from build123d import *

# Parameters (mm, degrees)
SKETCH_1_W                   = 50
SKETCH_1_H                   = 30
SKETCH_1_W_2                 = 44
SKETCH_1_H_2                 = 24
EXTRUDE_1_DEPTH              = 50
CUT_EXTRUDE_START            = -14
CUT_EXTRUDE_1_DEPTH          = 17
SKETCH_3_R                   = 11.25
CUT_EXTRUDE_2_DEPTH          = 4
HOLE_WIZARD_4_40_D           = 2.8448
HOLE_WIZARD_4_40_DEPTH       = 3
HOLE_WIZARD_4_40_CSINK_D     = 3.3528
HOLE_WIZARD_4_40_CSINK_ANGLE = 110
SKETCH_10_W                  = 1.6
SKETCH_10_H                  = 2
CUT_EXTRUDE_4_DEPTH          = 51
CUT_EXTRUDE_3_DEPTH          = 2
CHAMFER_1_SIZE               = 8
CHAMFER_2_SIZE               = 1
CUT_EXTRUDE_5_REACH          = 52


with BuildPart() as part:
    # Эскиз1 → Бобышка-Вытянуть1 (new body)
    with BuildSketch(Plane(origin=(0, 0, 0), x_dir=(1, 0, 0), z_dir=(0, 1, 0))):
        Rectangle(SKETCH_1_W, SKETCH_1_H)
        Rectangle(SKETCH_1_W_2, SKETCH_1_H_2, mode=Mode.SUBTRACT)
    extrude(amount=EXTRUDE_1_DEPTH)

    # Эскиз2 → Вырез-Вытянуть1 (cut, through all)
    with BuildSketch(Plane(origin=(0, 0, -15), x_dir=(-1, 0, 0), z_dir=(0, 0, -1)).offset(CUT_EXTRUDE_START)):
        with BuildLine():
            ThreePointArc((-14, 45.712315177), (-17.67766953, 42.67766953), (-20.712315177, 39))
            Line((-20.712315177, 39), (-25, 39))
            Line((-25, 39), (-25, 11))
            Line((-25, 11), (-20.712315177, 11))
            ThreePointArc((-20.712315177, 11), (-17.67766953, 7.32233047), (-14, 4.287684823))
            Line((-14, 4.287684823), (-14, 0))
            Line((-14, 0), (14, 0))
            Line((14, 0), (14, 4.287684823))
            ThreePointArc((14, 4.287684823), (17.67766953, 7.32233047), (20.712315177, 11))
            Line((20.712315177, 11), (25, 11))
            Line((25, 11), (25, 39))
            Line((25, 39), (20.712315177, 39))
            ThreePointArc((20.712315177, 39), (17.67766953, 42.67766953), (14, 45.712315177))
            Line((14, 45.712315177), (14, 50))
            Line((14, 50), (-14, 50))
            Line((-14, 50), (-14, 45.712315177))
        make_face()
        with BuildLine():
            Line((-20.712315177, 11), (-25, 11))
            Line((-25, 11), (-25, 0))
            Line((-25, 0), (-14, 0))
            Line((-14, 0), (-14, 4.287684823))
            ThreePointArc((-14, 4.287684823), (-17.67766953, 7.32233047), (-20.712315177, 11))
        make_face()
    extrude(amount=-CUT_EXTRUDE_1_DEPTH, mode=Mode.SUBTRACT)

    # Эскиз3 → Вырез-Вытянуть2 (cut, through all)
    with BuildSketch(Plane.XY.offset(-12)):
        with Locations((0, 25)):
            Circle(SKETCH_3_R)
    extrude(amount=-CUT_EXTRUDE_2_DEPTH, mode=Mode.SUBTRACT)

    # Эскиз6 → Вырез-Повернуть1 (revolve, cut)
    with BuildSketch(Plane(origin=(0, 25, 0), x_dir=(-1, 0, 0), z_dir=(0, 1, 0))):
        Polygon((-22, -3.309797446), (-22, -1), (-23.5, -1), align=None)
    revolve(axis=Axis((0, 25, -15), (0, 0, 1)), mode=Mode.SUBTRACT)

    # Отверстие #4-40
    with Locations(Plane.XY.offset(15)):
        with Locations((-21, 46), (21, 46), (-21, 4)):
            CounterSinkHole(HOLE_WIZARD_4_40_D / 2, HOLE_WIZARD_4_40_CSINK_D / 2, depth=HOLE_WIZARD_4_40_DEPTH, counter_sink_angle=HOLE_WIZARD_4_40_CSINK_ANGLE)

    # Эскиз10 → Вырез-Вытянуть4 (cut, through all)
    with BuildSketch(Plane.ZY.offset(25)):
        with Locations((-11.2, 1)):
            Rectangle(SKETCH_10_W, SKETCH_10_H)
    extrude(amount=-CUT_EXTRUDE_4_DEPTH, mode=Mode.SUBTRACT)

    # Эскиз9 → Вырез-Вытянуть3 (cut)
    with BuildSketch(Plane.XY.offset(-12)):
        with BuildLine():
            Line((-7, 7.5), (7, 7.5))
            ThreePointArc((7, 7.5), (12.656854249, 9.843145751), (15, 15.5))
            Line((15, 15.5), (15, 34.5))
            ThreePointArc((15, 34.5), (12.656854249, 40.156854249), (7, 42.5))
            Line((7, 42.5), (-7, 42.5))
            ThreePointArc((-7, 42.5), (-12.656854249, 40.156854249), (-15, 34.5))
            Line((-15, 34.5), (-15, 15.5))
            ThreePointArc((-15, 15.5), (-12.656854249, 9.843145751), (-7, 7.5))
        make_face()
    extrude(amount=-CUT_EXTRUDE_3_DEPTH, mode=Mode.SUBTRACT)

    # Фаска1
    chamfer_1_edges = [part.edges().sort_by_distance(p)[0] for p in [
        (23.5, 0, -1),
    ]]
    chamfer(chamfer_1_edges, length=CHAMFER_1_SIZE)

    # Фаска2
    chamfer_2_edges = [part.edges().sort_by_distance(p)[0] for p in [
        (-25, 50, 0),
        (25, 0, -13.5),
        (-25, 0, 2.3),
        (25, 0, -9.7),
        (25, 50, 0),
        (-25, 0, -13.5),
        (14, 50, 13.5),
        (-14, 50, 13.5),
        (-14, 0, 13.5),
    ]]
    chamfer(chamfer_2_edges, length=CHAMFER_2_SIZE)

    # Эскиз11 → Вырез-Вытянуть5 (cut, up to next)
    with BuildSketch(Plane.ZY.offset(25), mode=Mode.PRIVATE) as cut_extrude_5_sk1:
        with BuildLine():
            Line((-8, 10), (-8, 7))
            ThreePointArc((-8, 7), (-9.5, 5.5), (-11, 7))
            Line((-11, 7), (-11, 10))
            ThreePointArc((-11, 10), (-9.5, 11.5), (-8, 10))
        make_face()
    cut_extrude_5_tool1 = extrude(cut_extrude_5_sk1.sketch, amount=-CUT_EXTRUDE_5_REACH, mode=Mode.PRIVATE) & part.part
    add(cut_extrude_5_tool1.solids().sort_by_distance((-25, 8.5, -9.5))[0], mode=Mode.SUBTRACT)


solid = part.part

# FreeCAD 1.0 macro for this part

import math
import FreeCAD as App
import Part
import Sketcher
from FreeCAD import Vector
Q = App.Units.Quantity


def edges_at(feature, points):
    """Names of the edges that pass closest to the given points."""
    edges = feature.Shape.Edges
    near = lambda p: min(range(len(edges)), key=lambda i: edges[i].distToShape(Part.Vertex(*p))[0])
    return sorted({f"Edge{near(p) + 1}" for p in points})


def add_polygon(sketch, points):
    """Adds a closed chain of lines whose ends are joined by coincident constraints."""
    first, n = sketch.GeometryCount, len(points)
    for a, b in zip(points, points[1:] + points[:1]):
        sketch.addGeometry(Part.LineSegment(App.Vector(*a, 0), App.Vector(*b, 0)), False)
    for i in range(n):
        sketch.addConstraint(Sketcher.Constraint("Coincident", first + i, 2, first + (i + 1) % n, 1))

doc = App.newDocument("Part")
body = doc.addObject("PartDesign::Body", "Body")

sketch1 = doc.addObject("Sketcher::SketchObject", "Sketch")
body.addObject(sketch1)
sketch1.AttachmentSupport = (doc.XZ_Plane, [""])
sketch1.MapMode = "FlatFace"
add_polygon(sketch1, [(-25, -15), (-25, 15), (25, 15), (25, -15)])
add_polygon(sketch1, [(22, 12), (-22, 12), (-22, -12), (22, -12)])
sketch1.addConstraint(Sketcher.Constraint("Vertical", 0))
sketch1.addConstraint(Sketcher.Constraint("Horizontal", 1))
sketch1.addConstraint(Sketcher.Constraint("Vertical", 2))
sketch1.addConstraint(Sketcher.Constraint("Horizontal", 3))
sketch1.addConstraint(Sketcher.Constraint("Horizontal", 4))
sketch1.addConstraint(Sketcher.Constraint("Vertical", 5))
sketch1.addConstraint(Sketcher.Constraint("Horizontal", 6))
sketch1.addConstraint(Sketcher.Constraint("Vertical", 7))
sketch1.addConstraint(Sketcher.Constraint("Symmetric", 0, 2, 2, 2, -1, 1))
sketch1.addConstraint(Sketcher.Constraint("Symmetric", 4, 2, 6, 2, -1, 1))
sketch1.addConstraint(Sketcher.Constraint("DistanceX", 1, 1, 1, 2, 50.0))
sketch1.addConstraint(Sketcher.Constraint("DistanceX", 4, 2, 4, 1, 44.0))
sketch1.addConstraint(Sketcher.Constraint("DistanceY", 0, 1, 0, 2, 30.0))
sketch1.addConstraint(Sketcher.Constraint("DistanceY", 5, 2, 5, 1, 24.0))
pad1 = doc.addObject("PartDesign::Pad", "Pad")
body.addObject(pad1)
pad1.Profile = sketch1
pad1.Length = 50
pad1.Reversed = True

sketch2 = doc.addObject("Sketcher::SketchObject", "Sketch001")
body.addObject(sketch2)
sketch2.AttachmentSupport = (doc.XY_Plane, [""])
sketch2.MapMode = "FlatFace"
sketch2.AttachmentOffset = App.Placement(Vector(0, 0, -1), App.Rotation())
sketch2.addGeometry(Part.ArcOfCircle(Part.Circle(Vector(0, 25, 0), Vector(0, 0, 1), 25), math.radians(34), math.radians(56)), False)
sketch2.addGeometry(Part.LineSegment(Vector(20.7, 39, 0), Vector(25, 39, 0)), False)
sketch2.addGeometry(Part.LineSegment(Vector(25, 39, 0), Vector(25, 0, 0)), False)
sketch2.addGeometry(Part.LineSegment(Vector(25, 0, 0), Vector(-14, 0, 0)), False)
sketch2.addGeometry(Part.LineSegment(Vector(-14, 0, 0), Vector(-14, 4.3, 0)), False)
sketch2.addGeometry(Part.ArcOfCircle(Part.Circle(Vector(0, 25, 0), Vector(0, 0, 1), 25), math.radians(-146), math.radians(-124)), False)
sketch2.addGeometry(Part.LineSegment(Vector(-20.7, 11, 0), Vector(-25, 11, 0)), False)
sketch2.addGeometry(Part.LineSegment(Vector(-25, 11, 0), Vector(-25, 39, 0)), False)
sketch2.addGeometry(Part.LineSegment(Vector(-25, 39, 0), Vector(-20.7, 39, 0)), False)
sketch2.addGeometry(Part.ArcOfCircle(Part.Circle(Vector(0, 25, 0), Vector(0, 0, 1), 25), math.radians(124), math.radians(146)), False)
sketch2.addGeometry(Part.LineSegment(Vector(-14, 45.7, 0), Vector(-14, 50, 0)), False)
sketch2.addGeometry(Part.LineSegment(Vector(-14, 50, 0), Vector(14, 50, 0)), False)
sketch2.addGeometry(Part.LineSegment(Vector(14, 50, 0), Vector(14, 45.7, 0)), False)
sketch2.addConstraint(Sketcher.Constraint("Coincident", 0, 1, 1, 1))
sketch2.addConstraint(Sketcher.Constraint("Coincident", 1, 2, 2, 1))
sketch2.addConstraint(Sketcher.Constraint("Coincident", 2, 2, 3, 1))
sketch2.addConstraint(Sketcher.Constraint("Coincident", 3, 2, 4, 1))
sketch2.addConstraint(Sketcher.Constraint("Coincident", 4, 2, 5, 2))
sketch2.addConstraint(Sketcher.Constraint("Coincident", 5, 1, 6, 1))
sketch2.addConstraint(Sketcher.Constraint("Coincident", 6, 2, 7, 1))
sketch2.addConstraint(Sketcher.Constraint("Coincident", 7, 2, 8, 1))
sketch2.addConstraint(Sketcher.Constraint("Coincident", 8, 2, 9, 2))
sketch2.addConstraint(Sketcher.Constraint("Coincident", 9, 1, 10, 1))
sketch2.addConstraint(Sketcher.Constraint("Coincident", 10, 2, 11, 1))
sketch2.addConstraint(Sketcher.Constraint("Coincident", 11, 2, 12, 1))
sketch2.addConstraint(Sketcher.Constraint("Coincident", 12, 2, 0, 2))
sketch2.addConstraint(Sketcher.Constraint("Horizontal", 1))
sketch2.addConstraint(Sketcher.Constraint("Vertical", 2))
sketch2.addConstraint(Sketcher.Constraint("Horizontal", 3))
sketch2.addConstraint(Sketcher.Constraint("Vertical", 4))
sketch2.addConstraint(Sketcher.Constraint("Horizontal", 6))
sketch2.addConstraint(Sketcher.Constraint("Vertical", 7))
sketch2.addConstraint(Sketcher.Constraint("Horizontal", 8))
sketch2.addConstraint(Sketcher.Constraint("Vertical", 10))
sketch2.addConstraint(Sketcher.Constraint("Horizontal", 11))
sketch2.addConstraint(Sketcher.Constraint("Vertical", 12))
sketch2.addConstraint(Sketcher.Constraint("Coincident", 5, 3, 0, 3))
sketch2.addConstraint(Sketcher.Constraint("Coincident", 9, 3, 0, 3))
sketch2.addConstraint(Sketcher.Constraint("Equal", 0, 5))
sketch2.addConstraint(Sketcher.Constraint("Equal", 5, 9))
sketch2.addConstraint(Sketcher.Constraint("Symmetric", 1, 2, 7, 2, -2))
sketch2.addConstraint(Sketcher.Constraint("Symmetric", 9, 1, 12, 2, -2))
sketch2.addConstraint(Sketcher.Constraint("PointOnObject", 2, 2, -1))
sketch2.addConstraint(Sketcher.Constraint("Vertical", 5, 1, 8, 2))
sketch2.addConstraint(Sketcher.Constraint("Vertical", 4, 2, 9, 1))
sketch2.addConstraint(Sketcher.Constraint("Equal", 3, 2))
sketch2.addConstraint(Sketcher.Constraint("Equal", 8, 4))
sketch2.addConstraint(Sketcher.Constraint("Equal", 4, 10))
sketch2.addConstraint(Sketcher.Constraint("Radius", 0, 25.0))
sketch2.addConstraint(Sketcher.Constraint("DistanceX", 3, 2, 3, 1, 39.0))
sketch2.addConstraint(Sketcher.Constraint("DistanceX", 11, 1, 11, 2, 28.0))
pocket1 = doc.addObject("PartDesign::Pocket", "Pocket")
body.addObject(pocket1)
pocket1.Profile = sketch2
pocket1.Type = "ThroughAll"
pocket1.Reversed = True

sketch3 = doc.addObject("Sketcher::SketchObject", "Sketch002")
body.addObject(sketch3)
sketch3.AttachmentSupport = (doc.XY_Plane, [""])
sketch3.MapMode = "FlatFace"
sketch3.AttachmentOffset = App.Placement(Vector(0, 0, -12), App.Rotation())
sketch3.addGeometry(Part.Circle(Vector(0, 25, 0), Vector(0, 0, 1), 11), False)
sketch3.addConstraint(Sketcher.Constraint("PointOnObject", 0, 3, -2))
sketch3.addConstraint(Sketcher.Constraint("Diameter", 0, 22.5))
sketch3.addConstraint(Sketcher.Constraint("DistanceY", -1, 1, 0, 3, 25.0))
pocket2 = doc.addObject("PartDesign::Pocket", "Pocket001")
body.addObject(pocket2)
pocket2.Profile = sketch3
pocket2.Type = "ThroughAll"

sketch4 = doc.addObject("Sketcher::SketchObject", "Sketch003")
body.addObject(sketch4)
sketch4.AttachmentSupport = (doc.XZ_Plane, [""])
sketch4.MapMode = "FlatFace"
sketch4.AttachmentOffset = App.Placement(Vector(0, 0, -25), App.Rotation())
add_polygon(sketch4, [(22, -3.3), (22, -1), (23.5, -1)])
sketch4.addConstraint(Sketcher.Constraint("Vertical", 0))
sketch4.addConstraint(Sketcher.Constraint("Horizontal", 1))
sketch4.addConstraint(Sketcher.Constraint("Angle", 2, Q("-123 deg")))
sketch4.addConstraint(Sketcher.Constraint("DistanceX", 1, 1, 1, 2, 1.5))
sketch4.addConstraint(Sketcher.Constraint("DistanceX", -1, 1, 0, 2, 22.0))
sketch4.addConstraint(Sketcher.Constraint("DistanceY", 0, 2, -1, 1, 1.0))
groove = doc.addObject("PartDesign::Groove", "Groove")
body.addObject(groove)
groove.Profile = sketch4
groove.ReferenceAxis = (sketch4, ["V_Axis"])
groove.Angle = 360

sketch5 = doc.addObject("Sketcher::SketchObject", "Sketch004")
body.addObject(sketch5)
sketch5.AttachmentSupport = (doc.XY_Plane, [""])
sketch5.MapMode = "FlatFace"
sketch5.AttachmentOffset = App.Placement(Vector(0, 0, 15), App.Rotation())
sketch5.addGeometry(Part.Circle(Vector(-21, 46, 0), Vector(0, 0, 1), 1.4), False)
sketch5.addGeometry(Part.Circle(Vector(21, 46, 0), Vector(0, 0, 1), 1.4), False)
sketch5.addGeometry(Part.Circle(Vector(-21, 4, 0), Vector(0, 0, 1), 1.4), False)
sketch5.addConstraint(Sketcher.Constraint("Equal", 0, 1))
sketch5.addConstraint(Sketcher.Constraint("Equal", 1, 2))
sketch5.addConstraint(Sketcher.Constraint("Symmetric", 0, 3, 1, 3, -2))
sketch5.addConstraint(Sketcher.Constraint("Vertical", 0, 3, 2, 3))
sketch5.addConstraint(Sketcher.Constraint("DistanceX", 0, 3, -1, 1, 21.0))
sketch5.addConstraint(Sketcher.Constraint("DistanceY", -1, 1, 0, 3, 46.0))
sketch5.addConstraint(Sketcher.Constraint("DistanceY", -1, 1, 2, 3, 4.0))
sketch5.addConstraint(Sketcher.Constraint("Diameter", 0, 2.8448))
doc.recompute()
hole = doc.addObject("PartDesign::Hole", "Hole")
body.addObject(hole)
hole.Profile = sketch5
hole.ThreadType = "None"
hole.Diameter = 2.8448
hole.DepthType = "Dimension"
hole.Depth = 3
hole.DrillPoint = "Flat"
hole.HoleCutType = "Countersink"
hole.HoleCutDiameter = 3.3528
hole.HoleCutCountersinkAngle = 110

sketch6 = doc.addObject("Sketcher::SketchObject", "Sketch005")
body.addObject(sketch6)
sketch6.AttachmentSupport = (doc.YZ_Plane, [""])
sketch6.MapMode = "FlatFace"
sketch6.AttachmentOffset = App.Placement(Vector(0, 0, -25), App.Rotation())
add_polygon(sketch6, [(2, -12), (0, -12), (0, -10.4), (2, -10.4)])
sketch6.addConstraint(Sketcher.Constraint("Horizontal", 0))
sketch6.addConstraint(Sketcher.Constraint("Vertical", 1))
sketch6.addConstraint(Sketcher.Constraint("Horizontal", 2))
sketch6.addConstraint(Sketcher.Constraint("Vertical", 3))
sketch6.addConstraint(Sketcher.Constraint("PointOnObject", 0, 2, -2))
sketch6.addConstraint(Sketcher.Constraint("DistanceX", 0, 2, 0, 1, 2.0))
sketch6.addConstraint(Sketcher.Constraint("DistanceY", 1, 1, 1, 2, 1.6))
sketch6.addConstraint(Sketcher.Constraint("DistanceY", 0, 2, -1, 1, 12.0))
pocket3 = doc.addObject("PartDesign::Pocket", "Pocket002")
body.addObject(pocket3)
pocket3.Profile = sketch6
pocket3.Type = "ThroughAll"
pocket3.Reversed = True

sketch7 = doc.addObject("Sketcher::SketchObject", "Sketch006")
body.addObject(sketch7)
sketch7.AttachmentSupport = (doc.XY_Plane, [""])
sketch7.MapMode = "FlatFace"
sketch7.AttachmentOffset = App.Placement(Vector(0, 0, -12), App.Rotation())
sketch7.addGeometry(Part.LineSegment(Vector(-7, 8, 0), Vector(7, 8, 0)), False)
sketch7.addGeometry(Part.ArcOfCircle(Part.Circle(Vector(7, 16, 0), Vector(0, 0, 1), 8), math.radians(-90), math.radians(0)), False)
sketch7.addGeometry(Part.LineSegment(Vector(15, 16, 0), Vector(15, 34, 0)), False)
sketch7.addGeometry(Part.ArcOfCircle(Part.Circle(Vector(7, 34, 0), Vector(0, 0, 1), 8), math.radians(0), math.radians(90)), False)
sketch7.addGeometry(Part.LineSegment(Vector(7, 42, 0), Vector(-7, 42, 0)), False)
sketch7.addGeometry(Part.ArcOfCircle(Part.Circle(Vector(-7, 34, 0), Vector(0, 0, 1), 8), math.radians(90), math.radians(180)), False)
sketch7.addGeometry(Part.LineSegment(Vector(-15, 34, 0), Vector(-15, 16, 0)), False)
sketch7.addGeometry(Part.ArcOfCircle(Part.Circle(Vector(-7, 16, 0), Vector(0, 0, 1), 8), math.radians(-180), math.radians(-90)), False)
sketch7.addConstraint(Sketcher.Constraint("Tangent", 0, 2, 1, 1))
sketch7.addConstraint(Sketcher.Constraint("Tangent", 1, 2, 2, 1))
sketch7.addConstraint(Sketcher.Constraint("Tangent", 2, 2, 3, 1))
sketch7.addConstraint(Sketcher.Constraint("Tangent", 3, 2, 4, 1))
sketch7.addConstraint(Sketcher.Constraint("Tangent", 4, 2, 5, 1))
sketch7.addConstraint(Sketcher.Constraint("Tangent", 5, 2, 6, 1))
sketch7.addConstraint(Sketcher.Constraint("Tangent", 6, 2, 7, 1))
sketch7.addConstraint(Sketcher.Constraint("Tangent", 7, 2, 0, 1))
sketch7.addConstraint(Sketcher.Constraint("Horizontal", 0))
sketch7.addConstraint(Sketcher.Constraint("Vertical", 2))
sketch7.addConstraint(Sketcher.Constraint("Horizontal", 4))
sketch7.addConstraint(Sketcher.Constraint("Vertical", 6))
sketch7.addConstraint(Sketcher.Constraint("Equal", 1, 3))
sketch7.addConstraint(Sketcher.Constraint("Equal", 3, 5))
sketch7.addConstraint(Sketcher.Constraint("Equal", 5, 7))
sketch7.addConstraint(Sketcher.Constraint("Radius", 1, 8.0))
sketch7.addConstraint(Sketcher.Constraint("DistanceX", 0, 1, 0, 2, 14.0))
sketch7.addConstraint(Sketcher.Constraint("DistanceY", 2, 1, 2, 2, 19.0))
sketch7.addConstraint(Sketcher.Constraint("DistanceX", -1, 1, 1, 3, 7.0))
sketch7.addConstraint(Sketcher.Constraint("DistanceY", -1, 1, 1, 3, 15.5))
pocket4 = doc.addObject("PartDesign::Pocket", "Pocket003")
body.addObject(pocket4)
pocket4.Profile = sketch7
pocket4.Length = 2
doc.recompute()

chamfer = doc.addObject("PartDesign::Chamfer", "Chamfer")
body.addObject(chamfer)
chamfer.Base = (pocket4, edges_at(pocket4, [(23.5, 0, -1)]))
chamfer.Size = 8
doc.recompute()

chamfer2 = doc.addObject("PartDesign::Chamfer", "Chamfer001")
body.addObject(chamfer2)
chamfer2.Base = (chamfer, edges_at(chamfer, [
    (-25, 50, 0),
    (25, 0, -13.5),
    (-25, 0, 2.3),
    (25, 0, -9.7),
    (25, 50, 0),
    (-25, 0, -13.5),
    (14, 50, 13.5),
    (-14, 50, 13.5),
    (-14, 0, 13.5),
]))
chamfer2.Size = 1

sketch8 = doc.addObject("Sketcher::SketchObject", "Sketch007")
body.addObject(sketch8)
sketch8.AttachmentSupport = (doc.YZ_Plane, [""])
sketch8.MapMode = "FlatFace"
sketch8.AttachmentOffset = App.Placement(Vector(0, 0, -25), App.Rotation())
sketch8.addGeometry(Part.LineSegment(Vector(7, -8, 0), Vector(10, -8, 0)), False)
sketch8.addGeometry(Part.ArcOfCircle(Part.Circle(Vector(10, -9.5, 0), Vector(0, 0, 1), 1.5), math.radians(-90), math.radians(90)), False)
sketch8.addGeometry(Part.LineSegment(Vector(10, -11, 0), Vector(7, -11, 0)), False)
sketch8.addGeometry(Part.ArcOfCircle(Part.Circle(Vector(7, -9.5, 0), Vector(0, 0, 1), 1.5), math.radians(90), math.radians(270)), False)
sketch8.addConstraint(Sketcher.Constraint("Tangent", 0, 2, 1, 2))
sketch8.addConstraint(Sketcher.Constraint("Tangent", 1, 1, 2, 1))
sketch8.addConstraint(Sketcher.Constraint("Tangent", 2, 2, 3, 2))
sketch8.addConstraint(Sketcher.Constraint("Tangent", 3, 1, 0, 1))
sketch8.addConstraint(Sketcher.Constraint("Horizontal", 0))
sketch8.addConstraint(Sketcher.Constraint("Horizontal", 2))
sketch8.addConstraint(Sketcher.Constraint("Radius", 1, 1.5))
sketch8.addConstraint(Sketcher.Constraint("DistanceX", 0, 1, 0, 2, 3.0))
sketch8.addConstraint(Sketcher.Constraint("DistanceX", -1, 1, 1, 3, 10.0))
sketch8.addConstraint(Sketcher.Constraint("DistanceY", 0, 2, -1, 1, 8.0))
pocket5 = doc.addObject("PartDesign::Pocket", "Pocket004")
body.addObject(pocket5)
pocket5.Profile = sketch8
pocket5.Type = "UpToFirst"
pocket5.Reversed = True

doc.recompute()
